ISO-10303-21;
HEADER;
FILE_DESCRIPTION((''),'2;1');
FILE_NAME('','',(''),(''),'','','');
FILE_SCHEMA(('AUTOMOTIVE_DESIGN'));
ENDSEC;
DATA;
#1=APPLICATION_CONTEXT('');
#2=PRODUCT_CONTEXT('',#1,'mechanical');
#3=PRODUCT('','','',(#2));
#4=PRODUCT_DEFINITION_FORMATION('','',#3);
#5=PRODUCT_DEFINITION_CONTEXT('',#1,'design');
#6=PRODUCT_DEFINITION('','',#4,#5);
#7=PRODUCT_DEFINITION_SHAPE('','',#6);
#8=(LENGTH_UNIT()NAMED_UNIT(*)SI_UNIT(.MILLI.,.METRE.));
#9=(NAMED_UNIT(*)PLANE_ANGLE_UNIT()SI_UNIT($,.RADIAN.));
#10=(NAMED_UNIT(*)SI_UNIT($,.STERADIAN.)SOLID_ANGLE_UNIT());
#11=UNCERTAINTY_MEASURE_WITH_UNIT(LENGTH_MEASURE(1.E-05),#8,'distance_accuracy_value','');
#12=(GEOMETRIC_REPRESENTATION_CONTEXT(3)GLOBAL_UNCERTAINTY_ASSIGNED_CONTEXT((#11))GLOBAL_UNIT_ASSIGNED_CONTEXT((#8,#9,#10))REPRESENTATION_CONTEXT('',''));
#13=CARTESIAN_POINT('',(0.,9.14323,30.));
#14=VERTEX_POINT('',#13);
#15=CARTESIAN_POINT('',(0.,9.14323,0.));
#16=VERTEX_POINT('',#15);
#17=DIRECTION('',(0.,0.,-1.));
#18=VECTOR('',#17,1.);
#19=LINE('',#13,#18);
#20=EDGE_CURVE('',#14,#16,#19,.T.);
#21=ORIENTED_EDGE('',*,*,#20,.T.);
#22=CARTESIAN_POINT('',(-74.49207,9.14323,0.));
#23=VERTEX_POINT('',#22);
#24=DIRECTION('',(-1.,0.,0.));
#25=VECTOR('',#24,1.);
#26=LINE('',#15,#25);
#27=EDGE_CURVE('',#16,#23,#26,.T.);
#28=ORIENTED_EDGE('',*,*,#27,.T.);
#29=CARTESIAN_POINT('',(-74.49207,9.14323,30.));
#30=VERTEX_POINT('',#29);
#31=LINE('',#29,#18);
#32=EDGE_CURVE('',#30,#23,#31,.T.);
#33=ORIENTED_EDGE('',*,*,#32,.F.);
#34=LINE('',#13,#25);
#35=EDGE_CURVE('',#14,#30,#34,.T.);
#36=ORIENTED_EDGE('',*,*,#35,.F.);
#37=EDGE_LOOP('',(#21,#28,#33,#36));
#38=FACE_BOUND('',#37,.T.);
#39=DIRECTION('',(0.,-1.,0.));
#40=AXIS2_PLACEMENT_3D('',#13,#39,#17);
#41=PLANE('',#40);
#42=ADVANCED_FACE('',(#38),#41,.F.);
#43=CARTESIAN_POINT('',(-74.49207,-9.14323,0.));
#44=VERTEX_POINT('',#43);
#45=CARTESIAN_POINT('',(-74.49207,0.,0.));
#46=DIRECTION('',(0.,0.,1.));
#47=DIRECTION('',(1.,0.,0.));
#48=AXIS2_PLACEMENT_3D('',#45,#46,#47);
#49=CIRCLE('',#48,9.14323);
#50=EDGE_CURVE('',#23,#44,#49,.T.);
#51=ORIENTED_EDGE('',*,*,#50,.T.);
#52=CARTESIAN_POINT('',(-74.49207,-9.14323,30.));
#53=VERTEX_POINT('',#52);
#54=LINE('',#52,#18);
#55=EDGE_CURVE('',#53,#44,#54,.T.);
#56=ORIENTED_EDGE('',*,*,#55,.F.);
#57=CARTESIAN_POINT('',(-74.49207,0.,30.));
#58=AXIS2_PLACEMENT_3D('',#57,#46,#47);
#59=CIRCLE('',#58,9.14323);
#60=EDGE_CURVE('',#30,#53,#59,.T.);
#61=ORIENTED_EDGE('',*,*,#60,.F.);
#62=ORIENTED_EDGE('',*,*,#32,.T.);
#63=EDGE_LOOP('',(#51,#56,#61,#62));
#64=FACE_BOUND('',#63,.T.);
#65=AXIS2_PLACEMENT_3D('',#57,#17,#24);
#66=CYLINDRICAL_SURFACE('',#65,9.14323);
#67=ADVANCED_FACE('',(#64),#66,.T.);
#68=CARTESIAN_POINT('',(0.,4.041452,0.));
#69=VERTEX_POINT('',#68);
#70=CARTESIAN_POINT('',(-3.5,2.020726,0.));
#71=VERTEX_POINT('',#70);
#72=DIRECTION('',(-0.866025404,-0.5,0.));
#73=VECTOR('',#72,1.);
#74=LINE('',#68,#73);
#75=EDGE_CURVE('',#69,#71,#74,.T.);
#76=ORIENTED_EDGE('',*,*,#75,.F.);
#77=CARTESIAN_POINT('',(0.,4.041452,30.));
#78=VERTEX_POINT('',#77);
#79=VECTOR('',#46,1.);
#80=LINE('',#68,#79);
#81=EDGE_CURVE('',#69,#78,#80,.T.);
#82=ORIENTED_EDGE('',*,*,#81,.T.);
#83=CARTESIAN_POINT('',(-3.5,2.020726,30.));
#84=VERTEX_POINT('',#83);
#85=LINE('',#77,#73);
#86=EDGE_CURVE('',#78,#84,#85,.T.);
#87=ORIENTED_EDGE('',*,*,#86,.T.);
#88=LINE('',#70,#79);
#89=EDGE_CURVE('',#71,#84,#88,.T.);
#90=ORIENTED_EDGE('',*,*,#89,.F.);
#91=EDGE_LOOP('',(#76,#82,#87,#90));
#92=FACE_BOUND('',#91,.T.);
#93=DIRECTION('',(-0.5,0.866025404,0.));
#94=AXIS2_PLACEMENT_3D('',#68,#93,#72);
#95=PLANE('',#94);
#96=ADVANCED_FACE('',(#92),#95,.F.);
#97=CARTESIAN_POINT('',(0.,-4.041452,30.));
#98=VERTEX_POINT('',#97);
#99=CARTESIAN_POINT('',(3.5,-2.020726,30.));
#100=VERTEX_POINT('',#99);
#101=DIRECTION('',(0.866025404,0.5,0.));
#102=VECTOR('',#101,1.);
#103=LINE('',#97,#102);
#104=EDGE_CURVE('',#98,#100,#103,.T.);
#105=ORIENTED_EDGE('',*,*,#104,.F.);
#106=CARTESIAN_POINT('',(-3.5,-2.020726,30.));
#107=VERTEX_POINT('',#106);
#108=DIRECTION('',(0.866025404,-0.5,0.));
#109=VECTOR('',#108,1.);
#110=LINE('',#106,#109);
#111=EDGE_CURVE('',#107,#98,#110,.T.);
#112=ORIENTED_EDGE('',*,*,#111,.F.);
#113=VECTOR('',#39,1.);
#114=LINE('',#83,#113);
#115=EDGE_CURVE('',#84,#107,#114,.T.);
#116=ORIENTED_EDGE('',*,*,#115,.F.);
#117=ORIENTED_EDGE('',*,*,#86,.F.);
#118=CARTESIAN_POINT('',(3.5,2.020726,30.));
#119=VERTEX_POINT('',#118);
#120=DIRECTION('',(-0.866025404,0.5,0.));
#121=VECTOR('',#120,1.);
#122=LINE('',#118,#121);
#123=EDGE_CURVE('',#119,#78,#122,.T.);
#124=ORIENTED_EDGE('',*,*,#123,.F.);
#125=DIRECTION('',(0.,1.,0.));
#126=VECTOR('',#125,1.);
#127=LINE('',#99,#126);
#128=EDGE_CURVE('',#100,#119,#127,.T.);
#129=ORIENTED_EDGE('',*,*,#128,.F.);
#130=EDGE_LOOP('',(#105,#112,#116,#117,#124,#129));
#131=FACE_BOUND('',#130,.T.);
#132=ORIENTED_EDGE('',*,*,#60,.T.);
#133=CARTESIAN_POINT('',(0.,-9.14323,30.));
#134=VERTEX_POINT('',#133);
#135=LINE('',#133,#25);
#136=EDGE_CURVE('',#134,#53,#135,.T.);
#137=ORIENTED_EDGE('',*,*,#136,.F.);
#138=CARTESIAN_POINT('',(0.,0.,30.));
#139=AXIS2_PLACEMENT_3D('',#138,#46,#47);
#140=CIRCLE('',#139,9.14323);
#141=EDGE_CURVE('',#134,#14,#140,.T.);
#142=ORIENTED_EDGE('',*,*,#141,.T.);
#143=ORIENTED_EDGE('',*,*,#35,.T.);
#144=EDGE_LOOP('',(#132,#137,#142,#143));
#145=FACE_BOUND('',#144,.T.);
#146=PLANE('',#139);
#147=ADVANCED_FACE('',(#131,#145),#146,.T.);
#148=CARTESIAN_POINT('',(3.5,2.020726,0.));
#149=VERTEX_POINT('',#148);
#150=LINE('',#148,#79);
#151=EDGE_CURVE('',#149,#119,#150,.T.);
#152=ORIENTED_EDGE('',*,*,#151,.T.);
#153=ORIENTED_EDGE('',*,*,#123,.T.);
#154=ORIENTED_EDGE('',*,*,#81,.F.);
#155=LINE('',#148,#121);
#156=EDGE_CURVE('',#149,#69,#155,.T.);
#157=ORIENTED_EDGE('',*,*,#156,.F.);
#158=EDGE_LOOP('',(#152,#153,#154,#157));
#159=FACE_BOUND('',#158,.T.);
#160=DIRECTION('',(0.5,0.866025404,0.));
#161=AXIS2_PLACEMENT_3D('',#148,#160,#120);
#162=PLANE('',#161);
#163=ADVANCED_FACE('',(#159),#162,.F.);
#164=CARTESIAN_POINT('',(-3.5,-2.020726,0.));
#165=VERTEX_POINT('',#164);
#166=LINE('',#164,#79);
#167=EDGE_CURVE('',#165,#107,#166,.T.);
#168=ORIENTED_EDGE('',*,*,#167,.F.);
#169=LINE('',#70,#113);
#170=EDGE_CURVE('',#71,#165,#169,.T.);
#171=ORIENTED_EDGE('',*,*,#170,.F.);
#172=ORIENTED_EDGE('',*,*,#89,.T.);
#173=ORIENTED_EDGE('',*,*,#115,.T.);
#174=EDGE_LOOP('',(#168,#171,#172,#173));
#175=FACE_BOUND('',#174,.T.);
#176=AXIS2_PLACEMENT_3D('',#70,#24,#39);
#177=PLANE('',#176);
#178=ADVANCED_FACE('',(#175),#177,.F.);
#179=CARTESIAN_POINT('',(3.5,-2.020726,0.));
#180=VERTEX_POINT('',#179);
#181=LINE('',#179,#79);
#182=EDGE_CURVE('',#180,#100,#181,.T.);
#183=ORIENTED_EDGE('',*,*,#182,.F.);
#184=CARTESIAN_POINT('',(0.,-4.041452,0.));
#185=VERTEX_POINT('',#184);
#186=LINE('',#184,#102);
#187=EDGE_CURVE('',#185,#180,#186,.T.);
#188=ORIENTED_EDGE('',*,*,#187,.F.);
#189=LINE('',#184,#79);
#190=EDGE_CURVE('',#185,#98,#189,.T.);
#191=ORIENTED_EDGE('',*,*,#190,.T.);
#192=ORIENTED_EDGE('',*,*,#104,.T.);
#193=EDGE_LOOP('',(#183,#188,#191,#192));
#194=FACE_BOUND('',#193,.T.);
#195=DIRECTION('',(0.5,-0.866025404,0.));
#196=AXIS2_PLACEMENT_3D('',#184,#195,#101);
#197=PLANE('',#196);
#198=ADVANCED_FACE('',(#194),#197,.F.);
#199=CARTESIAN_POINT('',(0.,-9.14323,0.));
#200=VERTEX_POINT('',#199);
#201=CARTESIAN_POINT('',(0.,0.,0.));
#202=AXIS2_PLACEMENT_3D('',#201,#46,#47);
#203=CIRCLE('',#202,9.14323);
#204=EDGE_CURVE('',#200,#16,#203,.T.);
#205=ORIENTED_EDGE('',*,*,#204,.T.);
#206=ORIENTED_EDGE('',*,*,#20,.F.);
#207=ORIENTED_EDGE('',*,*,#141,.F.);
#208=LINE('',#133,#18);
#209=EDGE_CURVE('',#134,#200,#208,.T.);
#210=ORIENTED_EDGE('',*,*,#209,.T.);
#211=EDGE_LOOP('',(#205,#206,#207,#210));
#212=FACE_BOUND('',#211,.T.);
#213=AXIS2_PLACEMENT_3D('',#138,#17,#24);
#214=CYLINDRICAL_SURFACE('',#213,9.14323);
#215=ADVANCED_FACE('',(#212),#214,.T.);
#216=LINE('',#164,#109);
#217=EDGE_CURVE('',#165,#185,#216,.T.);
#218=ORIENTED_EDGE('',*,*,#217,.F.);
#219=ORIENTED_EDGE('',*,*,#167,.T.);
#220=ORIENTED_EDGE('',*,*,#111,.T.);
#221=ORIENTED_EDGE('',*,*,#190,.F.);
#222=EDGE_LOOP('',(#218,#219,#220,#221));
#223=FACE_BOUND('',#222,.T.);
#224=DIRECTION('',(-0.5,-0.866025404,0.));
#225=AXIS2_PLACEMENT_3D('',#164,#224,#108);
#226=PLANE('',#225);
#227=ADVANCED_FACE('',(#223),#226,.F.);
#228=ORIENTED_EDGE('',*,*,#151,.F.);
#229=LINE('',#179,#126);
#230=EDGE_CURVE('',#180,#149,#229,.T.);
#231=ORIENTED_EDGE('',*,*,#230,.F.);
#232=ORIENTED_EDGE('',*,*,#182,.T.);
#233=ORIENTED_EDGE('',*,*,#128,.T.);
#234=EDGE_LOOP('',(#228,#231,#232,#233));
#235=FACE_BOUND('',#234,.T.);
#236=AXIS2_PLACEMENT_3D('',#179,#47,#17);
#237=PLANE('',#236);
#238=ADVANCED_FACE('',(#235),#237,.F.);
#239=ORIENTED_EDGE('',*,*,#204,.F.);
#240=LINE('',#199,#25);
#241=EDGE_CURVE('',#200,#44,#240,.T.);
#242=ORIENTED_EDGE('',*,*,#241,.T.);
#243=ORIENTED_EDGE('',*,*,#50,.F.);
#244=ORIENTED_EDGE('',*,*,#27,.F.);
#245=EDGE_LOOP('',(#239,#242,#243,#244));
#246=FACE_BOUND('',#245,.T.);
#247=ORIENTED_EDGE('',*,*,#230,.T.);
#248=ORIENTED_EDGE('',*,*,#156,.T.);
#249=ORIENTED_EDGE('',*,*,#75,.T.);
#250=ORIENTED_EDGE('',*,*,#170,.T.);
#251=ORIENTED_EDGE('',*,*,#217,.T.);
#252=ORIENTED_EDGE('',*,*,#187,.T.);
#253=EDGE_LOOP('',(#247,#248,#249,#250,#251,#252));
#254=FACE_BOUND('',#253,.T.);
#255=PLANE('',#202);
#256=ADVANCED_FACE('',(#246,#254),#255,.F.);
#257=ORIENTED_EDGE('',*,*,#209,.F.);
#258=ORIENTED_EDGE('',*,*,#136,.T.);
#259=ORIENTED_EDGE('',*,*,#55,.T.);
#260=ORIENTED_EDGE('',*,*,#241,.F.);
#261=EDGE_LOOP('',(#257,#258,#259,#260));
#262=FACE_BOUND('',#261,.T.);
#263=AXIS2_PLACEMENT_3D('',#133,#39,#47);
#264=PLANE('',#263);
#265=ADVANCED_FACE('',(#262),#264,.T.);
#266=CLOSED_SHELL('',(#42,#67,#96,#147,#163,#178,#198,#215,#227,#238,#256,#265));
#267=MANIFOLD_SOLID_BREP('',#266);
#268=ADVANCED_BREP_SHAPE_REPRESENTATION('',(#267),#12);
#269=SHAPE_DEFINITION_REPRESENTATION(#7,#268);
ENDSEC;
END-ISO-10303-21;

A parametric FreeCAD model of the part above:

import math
import FreeCAD as App
import Part
import Sketcher
from FreeCAD import Vector
Q = App.Units.Quantity


def add_polygon(sketch, points):
    """Adds a closed chain of lines whose ends are joined by coincident constraints."""
    first, n = sketch.GeometryCount, len(points)
    for a, b in zip(points, points[1:] + points[:1]):
        sketch.addGeometry(Part.LineSegment(App.Vector(*a, 0), App.Vector(*b, 0)), False)
    for i in range(n):
        sketch.addConstraint(Sketcher.Constraint("Coincident", first + i, 2, first + (i + 1) % n, 1))

doc = App.newDocument("Part")
body = doc.addObject("PartDesign::Body", "Body")

sketch1 = body.newObject("Sketcher::SketchObject", "Sketch")
sketch1.AttachmentSupport = (doc.getObject("XY_Plane"), [""])
sketch1.MapMode = "FlatFace"
sketch1.addGeometry([
    Part.LineSegment(Vector(-74.49207, -9.14323, 0), Vector(0, -9.14323, 0)),
    Part.ArcOfCircle(Part.Circle(Vector(0, 0, 0), Vector(0, 0, 1), 9.14323), math.radians(-90), math.radians(90)),
    Part.LineSegment(Vector(0, 9.14323, 0), Vector(-74.49207, 9.14323, 0)),
    Part.ArcOfCircle(Part.Circle(Vector(-74.49207, 0, 0), Vector(0, 0, 1), 9.14323), math.radians(90), math.radians(270)),
], False)
sketch1.addConstraint([
    Sketcher.Constraint("Tangent", 0, 2, 1, 1),
    Sketcher.Constraint("Tangent", 1, 2, 2, 1),
    Sketcher.Constraint("Tangent", 2, 2, 3, 1),
    Sketcher.Constraint("Tangent", 3, 2, 0, 1),
    Sketcher.Constraint("Horizontal", 0),
    Sketcher.Constraint("Horizontal", 2),
    Sketcher.Constraint("Coincident", 1, 3, -1, 1),
    Sketcher.Constraint("Radius", 1, Q("9.14323 mm")),
    Sketcher.Constraint("DistanceX", 0, 1, 0, 2, Q("74.49207 mm")),
])
pad1 = body.newObject("PartDesign::Pad", "Pad")
pad1.Profile = sketch1
pad1.Length = 30

sketch2 = body.newObject("Sketcher::SketchObject", "Sketch001")
sketch2.AttachmentSupport = (doc.getObject("XY_Plane"), [""])
sketch2.MapMode = "FlatFace"
sketch2.AttachmentOffset = App.Placement(Vector(0, 0, 30), App.Rotation())
add_polygon(sketch2, [(-3.5, 2.020726), (-3.5, -2.020726), (0, -4.041452), (3.5, -2.020726), (3.5, 2.020726), (0, 4.041452)])
sketch2.addConstraint([
    Sketcher.Constraint("Vertical", 0),
    Sketcher.Constraint("Vertical", 3),
    Sketcher.Constraint("Symmetric", 0, 2, 3, 2, -1, 1),
    Sketcher.Constraint("Symmetric", 1, 2, 4, 2, -1, 1),
    Sketcher.Constraint("PointOnObject", 1, 2, -2),
    Sketcher.Constraint("Parallel", 2, 5),
    Sketcher.Constraint("Horizontal", 0, 2, 2, 2),
    Sketcher.Constraint("Angle", 1, Q("-30 deg")),
    Sketcher.Constraint("DistanceX", 0, 2, 2, 2, Q("7 mm")),
    Sketcher.Constraint("DistanceY", 0, 2, 0, 1, Q("4.041452 mm")),
])
pocket1 = body.newObject("PartDesign::Pocket", "Pocket")
pocket1.Profile = sketch2
pocket1.Type = "ThroughAll"

doc.recompute()
